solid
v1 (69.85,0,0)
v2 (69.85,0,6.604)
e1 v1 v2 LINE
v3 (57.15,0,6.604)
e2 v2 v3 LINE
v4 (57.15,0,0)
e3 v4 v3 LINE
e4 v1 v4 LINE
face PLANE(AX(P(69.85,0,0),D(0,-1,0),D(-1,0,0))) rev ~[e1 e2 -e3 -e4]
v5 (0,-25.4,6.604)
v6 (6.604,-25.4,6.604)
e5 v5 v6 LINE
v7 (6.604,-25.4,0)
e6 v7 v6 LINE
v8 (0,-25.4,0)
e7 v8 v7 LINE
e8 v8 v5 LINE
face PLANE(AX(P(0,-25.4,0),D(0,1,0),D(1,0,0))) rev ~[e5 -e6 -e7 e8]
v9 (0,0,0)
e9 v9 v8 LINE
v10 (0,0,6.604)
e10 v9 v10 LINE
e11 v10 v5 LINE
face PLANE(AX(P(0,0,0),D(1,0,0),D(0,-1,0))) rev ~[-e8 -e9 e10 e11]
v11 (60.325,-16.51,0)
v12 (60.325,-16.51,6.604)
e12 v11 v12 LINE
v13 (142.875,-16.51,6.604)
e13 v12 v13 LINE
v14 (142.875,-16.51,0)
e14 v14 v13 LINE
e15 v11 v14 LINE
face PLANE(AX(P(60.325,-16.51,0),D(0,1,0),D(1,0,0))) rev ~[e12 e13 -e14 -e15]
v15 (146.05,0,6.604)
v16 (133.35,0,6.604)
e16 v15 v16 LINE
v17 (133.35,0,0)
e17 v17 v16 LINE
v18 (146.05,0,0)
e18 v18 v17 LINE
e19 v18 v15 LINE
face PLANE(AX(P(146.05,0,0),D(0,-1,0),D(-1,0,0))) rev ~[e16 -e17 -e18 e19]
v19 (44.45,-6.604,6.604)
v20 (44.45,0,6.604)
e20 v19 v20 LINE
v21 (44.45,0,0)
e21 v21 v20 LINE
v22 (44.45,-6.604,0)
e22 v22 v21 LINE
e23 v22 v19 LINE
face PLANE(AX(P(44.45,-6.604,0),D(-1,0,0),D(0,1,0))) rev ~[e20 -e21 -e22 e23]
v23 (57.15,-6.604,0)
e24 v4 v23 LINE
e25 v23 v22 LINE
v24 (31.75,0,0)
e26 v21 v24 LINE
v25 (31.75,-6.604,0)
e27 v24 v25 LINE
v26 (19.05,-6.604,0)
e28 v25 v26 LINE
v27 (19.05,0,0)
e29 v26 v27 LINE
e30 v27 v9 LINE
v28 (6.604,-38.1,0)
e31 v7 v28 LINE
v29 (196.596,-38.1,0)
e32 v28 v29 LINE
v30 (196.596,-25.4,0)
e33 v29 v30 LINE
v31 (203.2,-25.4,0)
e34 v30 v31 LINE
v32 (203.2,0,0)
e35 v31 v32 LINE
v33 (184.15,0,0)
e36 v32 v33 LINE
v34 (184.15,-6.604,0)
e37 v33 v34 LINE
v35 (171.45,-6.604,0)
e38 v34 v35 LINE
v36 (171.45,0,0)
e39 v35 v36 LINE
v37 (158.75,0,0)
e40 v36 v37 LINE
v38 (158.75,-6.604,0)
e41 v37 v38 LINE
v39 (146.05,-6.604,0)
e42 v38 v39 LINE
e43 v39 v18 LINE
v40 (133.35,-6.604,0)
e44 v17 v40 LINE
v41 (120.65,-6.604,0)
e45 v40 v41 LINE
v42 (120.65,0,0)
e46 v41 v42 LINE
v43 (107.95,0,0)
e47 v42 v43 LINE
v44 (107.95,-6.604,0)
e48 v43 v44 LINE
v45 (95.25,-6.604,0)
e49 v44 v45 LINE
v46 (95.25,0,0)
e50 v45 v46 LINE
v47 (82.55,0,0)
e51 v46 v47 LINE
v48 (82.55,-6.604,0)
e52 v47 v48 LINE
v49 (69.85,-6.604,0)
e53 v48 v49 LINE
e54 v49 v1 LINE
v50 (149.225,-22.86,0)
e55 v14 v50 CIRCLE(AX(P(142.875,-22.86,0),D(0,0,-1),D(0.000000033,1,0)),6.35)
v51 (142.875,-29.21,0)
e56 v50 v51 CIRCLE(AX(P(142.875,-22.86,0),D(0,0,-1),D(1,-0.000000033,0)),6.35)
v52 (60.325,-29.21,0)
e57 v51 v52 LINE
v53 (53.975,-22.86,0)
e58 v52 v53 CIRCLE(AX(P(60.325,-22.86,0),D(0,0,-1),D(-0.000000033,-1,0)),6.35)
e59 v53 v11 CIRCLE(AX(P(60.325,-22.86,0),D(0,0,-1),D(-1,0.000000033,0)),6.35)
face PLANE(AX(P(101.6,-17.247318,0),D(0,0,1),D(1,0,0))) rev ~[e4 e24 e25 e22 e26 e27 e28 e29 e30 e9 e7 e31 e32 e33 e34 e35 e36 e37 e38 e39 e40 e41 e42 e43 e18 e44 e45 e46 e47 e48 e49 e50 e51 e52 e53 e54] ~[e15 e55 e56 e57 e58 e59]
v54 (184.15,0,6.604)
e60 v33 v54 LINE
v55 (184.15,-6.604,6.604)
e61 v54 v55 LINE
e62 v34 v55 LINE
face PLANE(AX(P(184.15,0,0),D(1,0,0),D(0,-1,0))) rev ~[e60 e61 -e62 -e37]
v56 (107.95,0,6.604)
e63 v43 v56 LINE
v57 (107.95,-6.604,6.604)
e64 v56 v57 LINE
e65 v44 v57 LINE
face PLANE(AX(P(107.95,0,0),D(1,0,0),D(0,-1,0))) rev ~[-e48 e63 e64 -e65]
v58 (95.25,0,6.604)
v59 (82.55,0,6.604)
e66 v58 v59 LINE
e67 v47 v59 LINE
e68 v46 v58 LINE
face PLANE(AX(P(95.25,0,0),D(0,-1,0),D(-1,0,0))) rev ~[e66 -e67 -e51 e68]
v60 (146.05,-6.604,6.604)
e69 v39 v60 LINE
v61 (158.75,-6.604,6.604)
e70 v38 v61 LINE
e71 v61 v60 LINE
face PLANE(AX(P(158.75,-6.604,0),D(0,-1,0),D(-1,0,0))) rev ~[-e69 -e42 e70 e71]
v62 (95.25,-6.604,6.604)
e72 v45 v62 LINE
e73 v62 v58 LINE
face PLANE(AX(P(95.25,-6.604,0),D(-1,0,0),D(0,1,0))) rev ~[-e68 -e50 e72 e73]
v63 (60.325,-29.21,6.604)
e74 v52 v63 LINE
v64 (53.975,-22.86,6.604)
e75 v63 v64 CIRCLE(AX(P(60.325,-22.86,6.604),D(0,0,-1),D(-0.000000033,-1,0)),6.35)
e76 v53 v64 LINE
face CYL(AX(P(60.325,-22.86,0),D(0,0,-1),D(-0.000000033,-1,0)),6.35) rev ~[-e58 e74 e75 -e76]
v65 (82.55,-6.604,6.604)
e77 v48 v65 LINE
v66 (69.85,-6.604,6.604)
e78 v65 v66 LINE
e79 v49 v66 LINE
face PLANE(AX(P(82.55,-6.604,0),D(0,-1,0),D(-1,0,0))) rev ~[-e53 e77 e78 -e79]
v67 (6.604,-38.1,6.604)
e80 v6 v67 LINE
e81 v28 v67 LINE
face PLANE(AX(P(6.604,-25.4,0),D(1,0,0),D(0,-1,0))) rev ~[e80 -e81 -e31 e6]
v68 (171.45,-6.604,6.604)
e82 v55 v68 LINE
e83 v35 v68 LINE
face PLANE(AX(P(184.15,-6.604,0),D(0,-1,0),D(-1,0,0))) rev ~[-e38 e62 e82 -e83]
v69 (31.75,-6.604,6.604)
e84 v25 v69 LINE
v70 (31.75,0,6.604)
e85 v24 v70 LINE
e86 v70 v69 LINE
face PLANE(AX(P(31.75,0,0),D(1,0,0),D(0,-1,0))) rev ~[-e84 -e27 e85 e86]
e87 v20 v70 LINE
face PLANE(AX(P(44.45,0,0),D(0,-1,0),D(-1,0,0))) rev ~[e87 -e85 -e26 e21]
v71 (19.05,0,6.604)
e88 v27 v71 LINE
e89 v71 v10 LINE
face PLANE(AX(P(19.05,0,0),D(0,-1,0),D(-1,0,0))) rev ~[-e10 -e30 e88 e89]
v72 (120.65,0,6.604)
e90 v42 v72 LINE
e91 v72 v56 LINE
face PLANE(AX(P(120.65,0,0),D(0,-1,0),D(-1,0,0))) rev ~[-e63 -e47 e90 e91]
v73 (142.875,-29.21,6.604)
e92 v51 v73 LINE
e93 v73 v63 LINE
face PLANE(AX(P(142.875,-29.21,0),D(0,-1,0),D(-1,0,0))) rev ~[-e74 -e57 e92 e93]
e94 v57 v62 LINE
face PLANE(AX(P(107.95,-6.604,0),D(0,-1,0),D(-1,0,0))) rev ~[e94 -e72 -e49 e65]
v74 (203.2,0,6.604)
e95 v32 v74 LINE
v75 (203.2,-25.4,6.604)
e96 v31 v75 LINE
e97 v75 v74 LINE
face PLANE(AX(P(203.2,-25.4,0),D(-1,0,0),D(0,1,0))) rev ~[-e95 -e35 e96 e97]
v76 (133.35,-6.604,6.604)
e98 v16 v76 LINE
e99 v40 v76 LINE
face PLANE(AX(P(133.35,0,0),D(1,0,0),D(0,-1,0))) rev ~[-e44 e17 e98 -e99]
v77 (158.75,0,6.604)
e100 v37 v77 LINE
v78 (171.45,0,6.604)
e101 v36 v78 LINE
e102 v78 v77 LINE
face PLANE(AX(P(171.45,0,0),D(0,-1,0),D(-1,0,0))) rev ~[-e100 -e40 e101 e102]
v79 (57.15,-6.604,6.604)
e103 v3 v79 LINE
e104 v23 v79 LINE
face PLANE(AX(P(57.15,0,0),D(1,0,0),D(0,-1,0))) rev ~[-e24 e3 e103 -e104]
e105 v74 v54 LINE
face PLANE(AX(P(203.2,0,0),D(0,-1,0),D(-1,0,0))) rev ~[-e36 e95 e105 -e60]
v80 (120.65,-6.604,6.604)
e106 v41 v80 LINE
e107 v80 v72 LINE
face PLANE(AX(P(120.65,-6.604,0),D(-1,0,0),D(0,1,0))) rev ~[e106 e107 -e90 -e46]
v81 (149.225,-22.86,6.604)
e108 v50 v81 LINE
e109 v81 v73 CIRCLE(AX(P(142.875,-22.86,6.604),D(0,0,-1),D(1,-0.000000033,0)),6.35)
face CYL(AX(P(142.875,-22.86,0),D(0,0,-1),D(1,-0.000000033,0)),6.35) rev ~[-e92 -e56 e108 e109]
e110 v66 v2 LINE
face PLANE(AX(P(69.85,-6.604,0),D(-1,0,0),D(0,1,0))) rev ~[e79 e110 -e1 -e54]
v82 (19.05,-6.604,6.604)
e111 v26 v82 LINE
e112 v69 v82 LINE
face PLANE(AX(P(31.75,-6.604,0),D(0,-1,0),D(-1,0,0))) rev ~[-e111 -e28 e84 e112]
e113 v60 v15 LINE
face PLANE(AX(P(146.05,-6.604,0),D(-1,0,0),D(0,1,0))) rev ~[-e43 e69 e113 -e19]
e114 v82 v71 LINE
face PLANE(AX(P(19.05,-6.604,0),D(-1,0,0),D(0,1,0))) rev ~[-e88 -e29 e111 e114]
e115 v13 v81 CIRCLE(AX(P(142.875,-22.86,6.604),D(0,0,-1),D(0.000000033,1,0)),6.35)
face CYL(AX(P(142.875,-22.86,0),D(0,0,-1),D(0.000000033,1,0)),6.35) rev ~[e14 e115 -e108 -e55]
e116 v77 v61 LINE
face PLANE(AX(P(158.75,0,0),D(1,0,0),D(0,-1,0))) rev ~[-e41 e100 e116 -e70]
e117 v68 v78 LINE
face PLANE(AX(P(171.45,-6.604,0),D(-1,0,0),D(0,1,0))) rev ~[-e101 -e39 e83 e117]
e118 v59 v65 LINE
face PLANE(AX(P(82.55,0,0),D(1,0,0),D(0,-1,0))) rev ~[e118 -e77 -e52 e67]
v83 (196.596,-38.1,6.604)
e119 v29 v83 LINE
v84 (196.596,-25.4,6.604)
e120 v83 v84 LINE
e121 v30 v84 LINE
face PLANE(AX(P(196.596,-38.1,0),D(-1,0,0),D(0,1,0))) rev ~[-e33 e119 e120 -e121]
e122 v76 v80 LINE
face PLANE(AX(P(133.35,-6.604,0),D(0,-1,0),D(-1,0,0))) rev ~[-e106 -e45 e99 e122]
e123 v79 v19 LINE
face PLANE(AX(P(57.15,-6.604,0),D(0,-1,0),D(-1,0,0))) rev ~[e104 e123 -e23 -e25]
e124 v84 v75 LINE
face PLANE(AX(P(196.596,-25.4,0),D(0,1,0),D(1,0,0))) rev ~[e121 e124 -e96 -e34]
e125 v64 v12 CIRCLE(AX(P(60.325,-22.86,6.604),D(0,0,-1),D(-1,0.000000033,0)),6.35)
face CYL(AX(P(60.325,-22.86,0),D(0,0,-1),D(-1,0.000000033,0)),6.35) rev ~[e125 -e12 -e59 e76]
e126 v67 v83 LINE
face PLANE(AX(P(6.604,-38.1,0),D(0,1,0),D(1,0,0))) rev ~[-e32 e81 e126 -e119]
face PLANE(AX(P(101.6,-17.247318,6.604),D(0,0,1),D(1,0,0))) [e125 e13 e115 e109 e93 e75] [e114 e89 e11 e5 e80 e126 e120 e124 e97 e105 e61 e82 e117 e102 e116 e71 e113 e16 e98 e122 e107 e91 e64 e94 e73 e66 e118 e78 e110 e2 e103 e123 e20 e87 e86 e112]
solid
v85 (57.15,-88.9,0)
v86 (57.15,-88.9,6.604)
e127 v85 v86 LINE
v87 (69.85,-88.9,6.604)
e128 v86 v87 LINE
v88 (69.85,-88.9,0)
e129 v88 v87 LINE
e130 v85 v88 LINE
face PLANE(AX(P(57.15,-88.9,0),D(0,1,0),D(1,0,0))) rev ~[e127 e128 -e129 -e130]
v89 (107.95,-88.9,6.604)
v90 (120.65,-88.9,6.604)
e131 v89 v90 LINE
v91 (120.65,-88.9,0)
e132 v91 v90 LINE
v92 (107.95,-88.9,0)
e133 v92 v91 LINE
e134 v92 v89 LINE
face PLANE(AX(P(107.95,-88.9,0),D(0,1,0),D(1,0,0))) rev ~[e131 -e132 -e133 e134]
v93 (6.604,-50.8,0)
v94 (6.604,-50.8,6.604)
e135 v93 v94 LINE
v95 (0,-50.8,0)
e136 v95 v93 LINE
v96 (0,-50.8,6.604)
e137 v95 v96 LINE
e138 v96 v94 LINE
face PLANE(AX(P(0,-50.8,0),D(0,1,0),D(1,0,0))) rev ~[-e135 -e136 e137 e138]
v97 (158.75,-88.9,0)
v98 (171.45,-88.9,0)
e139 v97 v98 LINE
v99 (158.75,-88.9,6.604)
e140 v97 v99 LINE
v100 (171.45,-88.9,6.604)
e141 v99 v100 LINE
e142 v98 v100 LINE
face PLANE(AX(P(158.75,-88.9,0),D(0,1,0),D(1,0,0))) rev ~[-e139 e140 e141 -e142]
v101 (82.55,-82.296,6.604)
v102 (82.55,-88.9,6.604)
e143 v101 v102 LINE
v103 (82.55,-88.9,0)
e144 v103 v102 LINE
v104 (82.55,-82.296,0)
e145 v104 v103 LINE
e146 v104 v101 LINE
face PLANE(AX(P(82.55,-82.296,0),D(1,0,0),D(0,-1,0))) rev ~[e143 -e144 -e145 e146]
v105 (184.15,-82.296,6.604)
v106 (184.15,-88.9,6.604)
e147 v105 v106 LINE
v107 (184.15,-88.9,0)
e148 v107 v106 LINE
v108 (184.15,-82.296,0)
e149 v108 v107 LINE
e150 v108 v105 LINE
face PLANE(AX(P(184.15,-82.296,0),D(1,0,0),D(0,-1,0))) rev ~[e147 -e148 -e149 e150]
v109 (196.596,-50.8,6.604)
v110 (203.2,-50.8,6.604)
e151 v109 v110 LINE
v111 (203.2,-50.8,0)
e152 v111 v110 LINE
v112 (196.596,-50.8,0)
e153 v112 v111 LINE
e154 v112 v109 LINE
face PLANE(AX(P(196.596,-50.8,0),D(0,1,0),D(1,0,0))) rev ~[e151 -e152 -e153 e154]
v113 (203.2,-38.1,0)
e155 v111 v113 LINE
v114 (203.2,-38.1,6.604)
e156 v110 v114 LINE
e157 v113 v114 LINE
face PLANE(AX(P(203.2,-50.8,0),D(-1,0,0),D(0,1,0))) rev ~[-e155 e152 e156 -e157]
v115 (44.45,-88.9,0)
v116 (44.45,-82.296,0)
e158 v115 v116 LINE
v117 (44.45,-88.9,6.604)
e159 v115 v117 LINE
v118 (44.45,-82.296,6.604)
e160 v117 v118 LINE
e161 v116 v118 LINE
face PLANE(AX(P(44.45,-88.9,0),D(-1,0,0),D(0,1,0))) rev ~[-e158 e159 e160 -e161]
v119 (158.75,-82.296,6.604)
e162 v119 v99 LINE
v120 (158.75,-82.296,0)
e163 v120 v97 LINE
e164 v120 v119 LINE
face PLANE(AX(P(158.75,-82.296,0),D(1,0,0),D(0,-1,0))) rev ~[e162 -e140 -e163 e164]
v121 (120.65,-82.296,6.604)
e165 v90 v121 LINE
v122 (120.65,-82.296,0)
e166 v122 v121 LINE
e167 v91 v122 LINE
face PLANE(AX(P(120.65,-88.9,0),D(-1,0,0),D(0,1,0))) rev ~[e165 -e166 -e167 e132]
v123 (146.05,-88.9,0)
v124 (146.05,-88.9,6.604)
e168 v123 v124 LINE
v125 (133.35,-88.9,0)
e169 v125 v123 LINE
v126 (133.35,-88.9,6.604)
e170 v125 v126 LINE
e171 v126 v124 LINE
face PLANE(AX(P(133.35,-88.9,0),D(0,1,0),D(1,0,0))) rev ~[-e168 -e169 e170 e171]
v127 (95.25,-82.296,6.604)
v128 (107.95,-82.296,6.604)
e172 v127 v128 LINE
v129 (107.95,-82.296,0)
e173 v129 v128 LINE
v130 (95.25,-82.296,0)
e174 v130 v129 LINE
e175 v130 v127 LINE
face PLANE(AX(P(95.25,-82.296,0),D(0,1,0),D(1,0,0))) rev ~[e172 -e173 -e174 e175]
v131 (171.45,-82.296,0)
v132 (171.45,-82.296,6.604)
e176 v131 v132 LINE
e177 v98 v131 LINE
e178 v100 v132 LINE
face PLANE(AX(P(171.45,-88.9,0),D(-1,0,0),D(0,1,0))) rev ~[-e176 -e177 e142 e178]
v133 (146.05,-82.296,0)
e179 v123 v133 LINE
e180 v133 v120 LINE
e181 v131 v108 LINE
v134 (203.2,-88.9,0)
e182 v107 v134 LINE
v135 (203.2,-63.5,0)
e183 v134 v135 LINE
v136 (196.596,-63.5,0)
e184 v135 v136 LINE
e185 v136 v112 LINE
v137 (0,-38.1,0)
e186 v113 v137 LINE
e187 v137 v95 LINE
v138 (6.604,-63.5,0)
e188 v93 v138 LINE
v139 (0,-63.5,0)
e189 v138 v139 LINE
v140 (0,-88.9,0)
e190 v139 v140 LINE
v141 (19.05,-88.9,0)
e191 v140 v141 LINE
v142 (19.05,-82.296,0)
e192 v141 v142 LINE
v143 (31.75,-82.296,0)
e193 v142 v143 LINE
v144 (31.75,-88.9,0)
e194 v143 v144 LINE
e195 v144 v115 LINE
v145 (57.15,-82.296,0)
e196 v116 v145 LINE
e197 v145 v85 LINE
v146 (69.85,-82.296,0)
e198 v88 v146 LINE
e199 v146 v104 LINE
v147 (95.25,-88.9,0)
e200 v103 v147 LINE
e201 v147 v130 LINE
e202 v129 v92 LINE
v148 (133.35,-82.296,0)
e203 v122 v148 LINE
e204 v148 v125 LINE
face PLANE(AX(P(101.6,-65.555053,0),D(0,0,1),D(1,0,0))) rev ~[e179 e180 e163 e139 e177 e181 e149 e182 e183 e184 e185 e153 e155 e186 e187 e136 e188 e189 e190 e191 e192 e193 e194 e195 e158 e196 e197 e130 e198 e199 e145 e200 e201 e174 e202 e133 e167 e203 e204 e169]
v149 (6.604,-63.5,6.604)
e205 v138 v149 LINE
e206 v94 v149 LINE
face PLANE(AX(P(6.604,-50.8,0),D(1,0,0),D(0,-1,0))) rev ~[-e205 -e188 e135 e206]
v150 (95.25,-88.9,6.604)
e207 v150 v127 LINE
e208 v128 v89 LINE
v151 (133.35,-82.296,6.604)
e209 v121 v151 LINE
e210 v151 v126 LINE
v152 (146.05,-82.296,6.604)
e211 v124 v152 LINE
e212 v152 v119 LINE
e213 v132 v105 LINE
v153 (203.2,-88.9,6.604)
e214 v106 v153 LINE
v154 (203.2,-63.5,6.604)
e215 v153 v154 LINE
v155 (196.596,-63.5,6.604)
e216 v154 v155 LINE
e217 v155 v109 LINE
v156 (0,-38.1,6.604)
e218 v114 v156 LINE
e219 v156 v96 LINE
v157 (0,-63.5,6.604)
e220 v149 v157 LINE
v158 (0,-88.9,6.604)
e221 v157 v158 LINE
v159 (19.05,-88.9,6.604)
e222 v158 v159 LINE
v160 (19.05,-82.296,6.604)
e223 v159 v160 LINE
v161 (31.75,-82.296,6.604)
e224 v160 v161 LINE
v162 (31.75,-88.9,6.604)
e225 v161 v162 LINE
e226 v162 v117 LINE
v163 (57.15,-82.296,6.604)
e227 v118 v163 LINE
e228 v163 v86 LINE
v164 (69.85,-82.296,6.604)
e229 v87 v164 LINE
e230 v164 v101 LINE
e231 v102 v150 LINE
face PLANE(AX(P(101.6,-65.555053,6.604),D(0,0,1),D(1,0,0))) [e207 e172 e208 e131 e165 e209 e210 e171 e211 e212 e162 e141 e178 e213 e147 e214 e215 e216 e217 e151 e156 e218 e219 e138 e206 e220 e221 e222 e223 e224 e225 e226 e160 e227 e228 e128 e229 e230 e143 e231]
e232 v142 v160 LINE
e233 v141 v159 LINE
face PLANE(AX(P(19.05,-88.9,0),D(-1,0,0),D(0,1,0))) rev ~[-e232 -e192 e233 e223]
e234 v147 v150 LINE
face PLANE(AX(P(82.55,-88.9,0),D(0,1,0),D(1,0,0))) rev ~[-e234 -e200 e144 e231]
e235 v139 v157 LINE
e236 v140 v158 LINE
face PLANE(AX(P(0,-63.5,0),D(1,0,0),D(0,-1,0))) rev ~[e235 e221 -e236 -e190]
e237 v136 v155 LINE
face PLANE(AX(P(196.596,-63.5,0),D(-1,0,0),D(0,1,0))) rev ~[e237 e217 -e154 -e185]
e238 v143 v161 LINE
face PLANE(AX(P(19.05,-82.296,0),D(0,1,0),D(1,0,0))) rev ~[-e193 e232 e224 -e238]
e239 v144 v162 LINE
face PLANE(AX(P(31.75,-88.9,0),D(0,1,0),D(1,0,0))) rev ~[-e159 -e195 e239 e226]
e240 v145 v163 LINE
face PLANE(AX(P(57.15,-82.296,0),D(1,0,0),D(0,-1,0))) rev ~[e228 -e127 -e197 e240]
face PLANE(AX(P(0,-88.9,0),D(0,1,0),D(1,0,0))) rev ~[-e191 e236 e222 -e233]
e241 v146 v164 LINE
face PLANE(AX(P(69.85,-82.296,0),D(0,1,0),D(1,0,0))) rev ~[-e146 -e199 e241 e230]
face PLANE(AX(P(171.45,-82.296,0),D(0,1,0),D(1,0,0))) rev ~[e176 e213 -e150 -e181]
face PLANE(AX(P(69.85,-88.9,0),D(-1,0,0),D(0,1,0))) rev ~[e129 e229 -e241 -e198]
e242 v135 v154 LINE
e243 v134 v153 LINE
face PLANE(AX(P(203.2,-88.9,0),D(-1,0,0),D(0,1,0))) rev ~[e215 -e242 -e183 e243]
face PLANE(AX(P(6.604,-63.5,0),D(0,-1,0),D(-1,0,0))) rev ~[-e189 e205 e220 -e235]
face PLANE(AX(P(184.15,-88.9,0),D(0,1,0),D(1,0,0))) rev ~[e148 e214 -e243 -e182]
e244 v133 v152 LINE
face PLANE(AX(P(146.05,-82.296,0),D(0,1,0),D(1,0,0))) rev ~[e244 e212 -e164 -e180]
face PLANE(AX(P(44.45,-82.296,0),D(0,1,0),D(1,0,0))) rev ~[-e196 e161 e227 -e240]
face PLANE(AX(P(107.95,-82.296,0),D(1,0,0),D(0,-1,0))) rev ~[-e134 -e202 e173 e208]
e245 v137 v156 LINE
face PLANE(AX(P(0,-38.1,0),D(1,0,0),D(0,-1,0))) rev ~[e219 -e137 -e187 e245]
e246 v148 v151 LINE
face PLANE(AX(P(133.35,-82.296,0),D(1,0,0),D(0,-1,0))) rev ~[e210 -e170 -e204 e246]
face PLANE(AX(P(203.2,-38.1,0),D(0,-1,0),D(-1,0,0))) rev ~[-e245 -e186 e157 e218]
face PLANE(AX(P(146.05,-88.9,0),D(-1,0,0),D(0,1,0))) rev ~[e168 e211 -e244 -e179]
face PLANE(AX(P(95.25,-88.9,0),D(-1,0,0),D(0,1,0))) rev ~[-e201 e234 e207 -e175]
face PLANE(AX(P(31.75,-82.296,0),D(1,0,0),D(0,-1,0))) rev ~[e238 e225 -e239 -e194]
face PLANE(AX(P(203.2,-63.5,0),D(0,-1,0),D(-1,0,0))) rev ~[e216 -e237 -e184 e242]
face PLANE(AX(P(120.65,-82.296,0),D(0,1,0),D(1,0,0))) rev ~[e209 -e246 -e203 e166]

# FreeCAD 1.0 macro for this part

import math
import FreeCAD as App
import Part
import Sketcher
from FreeCAD import Vector
Q = App.Units.Quantity

doc = App.newDocument("Part")
params = doc.addObject("Spreadsheet::Sheet", "Params")
for row, (alias, value) in enumerate([
    ("sketch1_height", "1 in"),
    ("sketch1_radius", "0.25 in"),
    ("sketch1_width", "0.5 in"),
    ("sketch1_width2", "0.26 in"),
    ("sketch1_width3", "3.25 in"),
    ("pad1_length", "0.26 in"),
    ("sketch2_width", "8 in"),
    ("sketch2_height", "1 in"),
    ("sketch2_width2", "0.5 in"),
    ("sketch2_width3", "0.26 in"),
    ("pad2_length", "0.26 in"),
], start=1):
    params.set(f"A{row}", alias)
    params.set(f"B{row}", "=" + value)
    params.setAlias(f"B{row}", alias)

body = doc.addObject("PartDesign::Body", "Body")

sketch1 = body.newObject("Sketcher::SketchObject", "Sketch")
sketch1.AttachmentSupport = (doc.getObject("XY_Plane"), [""])
sketch1.MapMode = "FlatFace"
sketch1.addGeometry(Part.LineSegment(Vector(19.05, 0, 0), Vector(0, 0, 0)), False)
sketch1.addGeometry(Part.LineSegment(Vector(0, 0, 0), Vector(0, -25.4, 0)), False)
sketch1.addGeometry(Part.LineSegment(Vector(0, -25.4, 0), Vector(6.604, -25.4, 0)), False)
sketch1.addGeometry(Part.LineSegment(Vector(6.604, -25.4, 0), Vector(6.604, -38.1, 0)), False)
sketch1.addGeometry(Part.LineSegment(Vector(6.604, -38.1, 0), Vector(196.596, -38.1, 0)), False)
sketch1.addGeometry(Part.LineSegment(Vector(196.596, -38.1, 0), Vector(196.596, -25.4, 0)), False)
sketch1.addGeometry(Part.LineSegment(Vector(196.596, -25.4, 0), Vector(203.2, -25.4, 0)), False)
sketch1.addGeometry(Part.LineSegment(Vector(203.2, -25.4, 0), Vector(203.2, 0, 0)), False)
sketch1.addGeometry(Part.LineSegment(Vector(203.2, 0, 0), Vector(184.15, 0, 0)), False)
sketch1.addGeometry(Part.LineSegment(Vector(184.15, 0, 0), Vector(184.15, -6.604, 0)), False)
sketch1.addGeometry(Part.LineSegment(Vector(184.15, -6.604, 0), Vector(171.45, -6.604, 0)), False)
sketch1.addGeometry(Part.LineSegment(Vector(171.45, -6.604, 0), Vector(171.45, 0, 0)), False)
sketch1.addGeometry(Part.LineSegment(Vector(171.45, 0, 0), Vector(158.75, 0, 0)), False)
sketch1.addGeometry(Part.LineSegment(Vector(158.75, 0, 0), Vector(158.75, -6.604, 0)), False)
sketch1.addGeometry(Part.LineSegment(Vector(158.75, -6.604, 0), Vector(146.05, -6.604, 0)), False)
sketch1.addGeometry(Part.LineSegment(Vector(146.05, -6.604, 0), Vector(146.05, 0, 0)), False)
sketch1.addGeometry(Part.LineSegment(Vector(146.05, 0, 0), Vector(133.35, 0, 0)), False)
sketch1.addGeometry(Part.LineSegment(Vector(133.35, 0, 0), Vector(133.35, -6.604, 0)), False)
sketch1.addGeometry(Part.LineSegment(Vector(133.35, -6.604, 0), Vector(120.65, -6.604, 0)), False)
sketch1.addGeometry(Part.LineSegment(Vector(120.65, -6.604, 0), Vector(120.65, 0, 0)), False)
sketch1.addGeometry(Part.LineSegment(Vector(120.65, 0, 0), Vector(107.95, 0, 0)), False)
sketch1.addGeometry(Part.LineSegment(Vector(107.95, 0, 0), Vector(107.95, -6.604, 0)), False)
sketch1.addGeometry(Part.LineSegment(Vector(107.95, -6.604, 0), Vector(95.25, -6.604, 0)), False)
sketch1.addGeometry(Part.LineSegment(Vector(95.25, -6.604, 0), Vector(95.25, 0, 0)), False)
sketch1.addGeometry(Part.LineSegment(Vector(95.25, 0, 0), Vector(82.55, 0, 0)), False)
sketch1.addGeometry(Part.LineSegment(Vector(82.55, 0, 0), Vector(82.55, -6.604, 0)), False)
sketch1.addGeometry(Part.LineSegment(Vector(82.55, -6.604, 0), Vector(69.85, -6.604, 0)), False)
sketch1.addGeometry(Part.LineSegment(Vector(69.85, -6.604, 0), Vector(69.85, 0, 0)), False)
sketch1.addGeometry(Part.LineSegment(Vector(69.85, 0, 0), Vector(57.15, 0, 0)), False)
sketch1.addGeometry(Part.LineSegment(Vector(57.15, 0, 0), Vector(57.15, -6.604, 0)), False)
sketch1.addGeometry(Part.LineSegment(Vector(57.15, -6.604, 0), Vector(44.45, -6.604, 0)), False)
sketch1.addGeometry(Part.LineSegment(Vector(44.45, -6.604, 0), Vector(44.45, 0, 0)), False)
sketch1.addGeometry(Part.LineSegment(Vector(44.45, 0, 0), Vector(31.75, 0, 0)), False)
sketch1.addGeometry(Part.LineSegment(Vector(31.75, 0, 0), Vector(31.75, -6.604, 0)), False)
sketch1.addGeometry(Part.LineSegment(Vector(31.75, -6.604, 0), Vector(19.05, -6.604, 0)), False)
sketch1.addGeometry(Part.LineSegment(Vector(19.05, -6.604, 0), Vector(19.05, 0, 0)), False)
sketch1.addGeometry(Part.ArcOfCircle(Part.Circle(Vector(60.325, -22.86, 0), Vector(0, 0, 1), 6.35), math.radians(-179.999998), math.radians(-90.000002)), False)
sketch1.addGeometry(Part.ArcOfCircle(Part.Circle(Vector(60.325, -22.86, 0), Vector(0, 0, 1), 6.35), math.radians(90.000002), math.radians(179.999998)), False)
sketch1.addGeometry(Part.LineSegment(Vector(60.325, -16.51, 0), Vector(142.875, -16.51, 0)), False)
sketch1.addGeometry(Part.ArcOfCircle(Part.Circle(Vector(142.875, -22.86, 0), Vector(0, 0, 1), 6.35), math.radians(0.000002), math.radians(89.999998)), False)
sketch1.addGeometry(Part.ArcOfCircle(Part.Circle(Vector(142.875, -22.86, 0), Vector(0, 0, 1), 6.35), math.radians(-89.999998), math.radians(-0.000002)), False)
sketch1.addGeometry(Part.LineSegment(Vector(142.875, -29.21, 0), Vector(60.325, -29.21, 0)), False)
sketch1.addConstraint(Sketcher.Constraint("Coincident", 0, 2, 1, 1))
sketch1.addConstraint(Sketcher.Constraint("Coincident", 1, 2, 2, 1))
sketch1.addConstraint(Sketcher.Constraint("Coincident", 2, 2, 3, 1))
sketch1.addConstraint(Sketcher.Constraint("Coincident", 3, 2, 4, 1))
sketch1.addConstraint(Sketcher.Constraint("Coincident", 4, 2, 5, 1))
sketch1.addConstraint(Sketcher.Constraint("Coincident", 5, 2, 6, 1))
sketch1.addConstraint(Sketcher.Constraint("Coincident", 6, 2, 7, 1))
sketch1.addConstraint(Sketcher.Constraint("Coincident", 7, 2, 8, 1))
sketch1.addConstraint(Sketcher.Constraint("Coincident", 8, 2, 9, 1))
sketch1.addConstraint(Sketcher.Constraint("Coincident", 9, 2, 10, 1))
sketch1.addConstraint(Sketcher.Constraint("Coincident", 10, 2, 11, 1))
sketch1.addConstraint(Sketcher.Constraint("Coincident", 11, 2, 12, 1))
sketch1.addConstraint(Sketcher.Constraint("Coincident", 12, 2, 13, 1))
sketch1.addConstraint(Sketcher.Constraint("Coincident", 13, 2, 14, 1))
sketch1.addConstraint(Sketcher.Constraint("Coincident", 14, 2, 15, 1))
sketch1.addConstraint(Sketcher.Constraint("Coincident", 15, 2, 16, 1))
sketch1.addConstraint(Sketcher.Constraint("Coincident", 16, 2, 17, 1))
sketch1.addConstraint(Sketcher.Constraint("Coincident", 17, 2, 18, 1))
sketch1.addConstraint(Sketcher.Constraint("Coincident", 18, 2, 19, 1))
sketch1.addConstraint(Sketcher.Constraint("Coincident", 19, 2, 20, 1))
sketch1.addConstraint(Sketcher.Constraint("Coincident", 20, 2, 21, 1))
sketch1.addConstraint(Sketcher.Constraint("Coincident", 21, 2, 22, 1))
sketch1.addConstraint(Sketcher.Constraint("Coincident", 22, 2, 23, 1))
sketch1.addConstraint(Sketcher.Constraint("Coincident", 23, 2, 24, 1))
sketch1.addConstraint(Sketcher.Constraint("Coincident", 24, 2, 25, 1))
sketch1.addConstraint(Sketcher.Constraint("Coincident", 25, 2, 26, 1))
sketch1.addConstraint(Sketcher.Constraint("Coincident", 26, 2, 27, 1))
sketch1.addConstraint(Sketcher.Constraint("Coincident", 27, 2, 28, 1))
sketch1.addConstraint(Sketcher.Constraint("Coincident", 28, 2, 29, 1))
sketch1.addConstraint(Sketcher.Constraint("Coincident", 29, 2, 30, 1))
sketch1.addConstraint(Sketcher.Constraint("Coincident", 30, 2, 31, 1))
sketch1.addConstraint(Sketcher.Constraint("Coincident", 31, 2, 32, 1))
sketch1.addConstraint(Sketcher.Constraint("Coincident", 32, 2, 33, 1))
sketch1.addConstraint(Sketcher.Constraint("Coincident", 33, 2, 34, 1))
sketch1.addConstraint(Sketcher.Constraint("Coincident", 34, 2, 35, 1))
sketch1.addConstraint(Sketcher.Constraint("Coincident", 35, 2, 0, 1))
sketch1.addConstraint(Sketcher.Constraint("Tangent", 36, 1, 37, 2))
sketch1.addConstraint(Sketcher.Constraint("Tangent", 37, 1, 38, 1))
sketch1.addConstraint(Sketcher.Constraint("Tangent", 38, 2, 39, 2))
sketch1.addConstraint(Sketcher.Constraint("Tangent", 39, 1, 40, 2))
sketch1.addConstraint(Sketcher.Constraint("Tangent", 40, 1, 41, 1))
sketch1.addConstraint(Sketcher.Constraint("Tangent", 41, 2, 36, 2))
sketch1.addConstraint(Sketcher.Constraint("Horizontal", 0))
sketch1.addConstraint(Sketcher.Constraint("Vertical", 1))
sketch1.addConstraint(Sketcher.Constraint("Horizontal", 2))
sketch1.addConstraint(Sketcher.Constraint("Vertical", 3))
sketch1.addConstraint(Sketcher.Constraint("Horizontal", 4))
sketch1.addConstraint(Sketcher.Constraint("Vertical", 5))
sketch1.addConstraint(Sketcher.Constraint("Horizontal", 6))
sketch1.addConstraint(Sketcher.Constraint("Vertical", 7))
sketch1.addConstraint(Sketcher.Constraint("Horizontal", 8))
sketch1.addConstraint(Sketcher.Constraint("Vertical", 9))
sketch1.addConstraint(Sketcher.Constraint("Horizontal", 10))
sketch1.addConstraint(Sketcher.Constraint("Vertical", 11))
sketch1.addConstraint(Sketcher.Constraint("Horizontal", 12))
sketch1.addConstraint(Sketcher.Constraint("Vertical", 13))
sketch1.addConstraint(Sketcher.Constraint("Horizontal", 14))
sketch1.addConstraint(Sketcher.Constraint("Vertical", 15))
sketch1.addConstraint(Sketcher.Constraint("Horizontal", 16))
sketch1.addConstraint(Sketcher.Constraint("Vertical", 17))
sketch1.addConstraint(Sketcher.Constraint("Horizontal", 18))
sketch1.addConstraint(Sketcher.Constraint("Vertical", 19))
sketch1.addConstraint(Sketcher.Constraint("Horizontal", 20))
sketch1.addConstraint(Sketcher.Constraint("Vertical", 21))
sketch1.addConstraint(Sketcher.Constraint("Horizontal", 22))
sketch1.addConstraint(Sketcher.Constraint("Vertical", 23))
sketch1.addConstraint(Sketcher.Constraint("Horizontal", 24))
sketch1.addConstraint(Sketcher.Constraint("Vertical", 25))
sketch1.addConstraint(Sketcher.Constraint("Horizontal", 26))
sketch1.addConstraint(Sketcher.Constraint("Vertical", 27))
sketch1.addConstraint(Sketcher.Constraint("Horizontal", 28))
sketch1.addConstraint(Sketcher.Constraint("Vertical", 29))
sketch1.addConstraint(Sketcher.Constraint("Horizontal", 30))
sketch1.addConstraint(Sketcher.Constraint("Vertical", 31))
sketch1.addConstraint(Sketcher.Constraint("Horizontal", 32))
sketch1.addConstraint(Sketcher.Constraint("Vertical", 33))
sketch1.addConstraint(Sketcher.Constraint("Horizontal", 34))
sketch1.addConstraint(Sketcher.Constraint("Vertical", 35))
sketch1.addConstraint(Sketcher.Constraint("Horizontal", 38))
sketch1.addConstraint(Sketcher.Constraint("Horizontal", 41))
sketch1.addConstraint(Sketcher.Constraint("Coincident", 0, 2, -1, 1))
sketch1.addConstraint(Sketcher.Constraint("Equal", 36, 37))
sketch1.addConstraint(Sketcher.Constraint("Equal", 37, 39))
sketch1.addConstraint(Sketcher.Constraint("PointOnObject", 7, 2, -1))
sketch1.addConstraint(Sketcher.Constraint("PointOnObject", 11, 2, -1))
sketch1.addConstraint(Sketcher.Constraint("PointOnObject", 15, 2, -1))
sketch1.addConstraint(Sketcher.Constraint("PointOnObject", 19, 2, -1))
sketch1.addConstraint(Sketcher.Constraint("PointOnObject", 23, 2, -1))
sketch1.addConstraint(Sketcher.Constraint("PointOnObject", 27, 2, -1))
sketch1.addConstraint(Sketcher.Constraint("PointOnObject", 31, 2, -1))
sketch1.addConstraint(Sketcher.Constraint("Horizontal", 2, 2, 5, 2))
sketch1.addConstraint(Sketcher.Constraint("Horizontal", 10, 2, 13, 2))
sketch1.addConstraint(Sketcher.Constraint("Horizontal", 14, 2, 17, 2))
sketch1.addConstraint(Sketcher.Constraint("Horizontal", 18, 2, 21, 2))
sketch1.addConstraint(Sketcher.Constraint("Horizontal", 22, 2, 25, 2))
sketch1.addConstraint(Sketcher.Constraint("Horizontal", 26, 2, 29, 2))
sketch1.addConstraint(Sketcher.Constraint("Horizontal", 30, 2, 33, 2))
sketch1.addConstraint(Sketcher.Constraint("Horizontal", 40, 3, 36, 1))
sketch1.addConstraint(Sketcher.Constraint("Horizontal", 36, 1, 39, 1))
sketch1.addConstraint(Sketcher.Constraint("Equal", 2, 6))
sketch1.addConstraint(Sketcher.Constraint("Equal", 0, 8))
sketch1.addConstraint(Sketcher.Constraint("Equal", 10, 12))
sketch1.addConstraint(Sketcher.Constraint("Equal", 12, 14))
sketch1.addConstraint(Sketcher.Constraint("Equal", 14, 16))
sketch1.addConstraint(Sketcher.Constraint("Equal", 16, 18))
sketch1.addConstraint(Sketcher.Constraint("Equal", 18, 20))
sketch1.addConstraint(Sketcher.Constraint("Equal", 20, 22))
sketch1.addConstraint(Sketcher.Constraint("Equal", 22, 24))
sketch1.addConstraint(Sketcher.Constraint("Equal", 24, 26))
sketch1.addConstraint(Sketcher.Constraint("Equal", 26, 28))
sketch1.addConstraint(Sketcher.Constraint("Equal", 28, 30))
sketch1.addConstraint(Sketcher.Constraint("Equal", 30, 32))
sketch1.addConstraint(Sketcher.Constraint("Equal", 32, 34))
sketch1.addConstraint(Sketcher.Constraint("Equal", 34, 3))
sketch1.addConstraint(Sketcher.Constraint("Equal", 6, 9))
sketch1.addConstraint(Sketcher.Constraint("DistanceY", 1, 2, 1, 1, Q("1 in")))
sketch1.addConstraint(Sketcher.Constraint("Radius", 36, Q("0.25 in")))
sketch1.addConstraint(Sketcher.Constraint("DistanceX", 10, 2, 10, 1, Q("0.5 in")))
sketch1.addConstraint(Sketcher.Constraint("DistanceX", -1, 1, 6, 2, Q("8 in")))
sketch1.addConstraint(Sketcher.Constraint("DistanceX", 2, 1, 2, 2, Q("0.26 in")))
sketch1.addConstraint(Sketcher.Constraint("DistanceX", 38, 1, 38, 2, Q("3.25 in")))
sketch1.addConstraint(Sketcher.Constraint("DistanceY", 36, 3, -1, 1, Q("0.9 in")))
sketch1.addConstraint(Sketcher.Constraint("DistanceX", -1, 1, 36, 3, Q("2.375 in")))
sketch1.setExpression("Constraints[115]", "Params.sketch1_height")
sketch1.setExpression("Constraints[116]", "Params.sketch1_radius")
sketch1.setExpression("Constraints[117]", "Params.sketch1_width")
sketch1.setExpression("Constraints[119]", "Params.sketch1_width2")
sketch1.setExpression("Constraints[120]", "Params.sketch1_width3")
pad1 = body.newObject("PartDesign::Pad", "Pad")
pad1.Profile = sketch1
pad1.setExpression("Length", "Params.pad1_length")
body2 = doc.addObject("PartDesign::Body", "Body001")

sketch2 = body2.newObject("Sketcher::SketchObject", "Sketch001")
sketch2.AttachmentSupport = (doc.getObject("XY_Plane001"), [""])
sketch2.MapMode = "FlatFace"
sketch2.addGeometry(Part.LineSegment(Vector(0, -38.1, 0), Vector(0, -50.8, 0)), False)
sketch2.addGeometry(Part.LineSegment(Vector(0, -50.8, 0), Vector(6.604, -50.8, 0)), False)
sketch2.addGeometry(Part.LineSegment(Vector(6.604, -50.8, 0), Vector(6.604, -63.5, 0)), False)
sketch2.addGeometry(Part.LineSegment(Vector(6.604, -63.5, 0), Vector(0, -63.5, 0)), False)
sketch2.addGeometry(Part.LineSegment(Vector(0, -63.5, 0), Vector(0, -88.9, 0)), False)
sketch2.addGeometry(Part.LineSegment(Vector(0, -88.9, 0), Vector(19.05, -88.9, 0)), False)
sketch2.addGeometry(Part.LineSegment(Vector(19.05, -88.9, 0), Vector(19.05, -82.296, 0)), False)
sketch2.addGeometry(Part.LineSegment(Vector(19.05, -82.296, 0), Vector(31.75, -82.296, 0)), False)
sketch2.addGeometry(Part.LineSegment(Vector(31.75, -82.296, 0), Vector(31.75, -88.9, 0)), False)
sketch2.addGeometry(Part.LineSegment(Vector(31.75, -88.9, 0), Vector(44.45, -88.9, 0)), False)
sketch2.addGeometry(Part.LineSegment(Vector(44.45, -88.9, 0), Vector(44.45, -82.296, 0)), False)
sketch2.addGeometry(Part.LineSegment(Vector(44.45, -82.296, 0), Vector(57.15, -82.296, 0)), False)
sketch2.addGeometry(Part.LineSegment(Vector(57.15, -82.296, 0), Vector(57.15, -88.9, 0)), False)
sketch2.addGeometry(Part.LineSegment(Vector(57.15, -88.9, 0), Vector(69.85, -88.9, 0)), False)
sketch2.addGeometry(Part.LineSegment(Vector(69.85, -88.9, 0), Vector(69.85, -82.296, 0)), False)
sketch2.addGeometry(Part.LineSegment(Vector(69.85, -82.296, 0), Vector(82.55, -82.296, 0)), False)
sketch2.addGeometry(Part.LineSegment(Vector(82.55, -82.296, 0), Vector(82.55, -88.9, 0)), False)
sketch2.addGeometry(Part.LineSegment(Vector(82.55, -88.9, 0), Vector(95.25, -88.9, 0)), False)
sketch2.addGeometry(Part.LineSegment(Vector(95.25, -88.9, 0), Vector(95.25, -82.296, 0)), False)
sketch2.addGeometry(Part.LineSegment(Vector(95.25, -82.296, 0), Vector(107.95, -82.296, 0)), False)
sketch2.addGeometry(Part.LineSegment(Vector(107.95, -82.296, 0), Vector(107.95, -88.9, 0)), False)
sketch2.addGeometry(Part.LineSegment(Vector(107.95, -88.9, 0), Vector(120.65, -88.9, 0)), False)
sketch2.addGeometry(Part.LineSegment(Vector(120.65, -88.9, 0), Vector(120.65, -82.296, 0)), False)
sketch2.addGeometry(Part.LineSegment(Vector(120.65, -82.296, 0), Vector(133.35, -82.296, 0)), False)
sketch2.addGeometry(Part.LineSegment(Vector(133.35, -82.296, 0), Vector(133.35, -88.9, 0)), False)
sketch2.addGeometry(Part.LineSegment(Vector(133.35, -88.9, 0), Vector(146.05, -88.9, 0)), False)
sketch2.addGeometry(Part.LineSegment(Vector(146.05, -88.9, 0), Vector(146.05, -82.296, 0)), False)
sketch2.addGeometry(Part.LineSegment(Vector(146.05, -82.296, 0), Vector(158.75, -82.296, 0)), False)
sketch2.addGeometry(Part.LineSegment(Vector(158.75, -82.296, 0), Vector(158.75, -88.9, 0)), False)
sketch2.addGeometry(Part.LineSegment(Vector(158.75, -88.9, 0), Vector(171.45, -88.9, 0)), False)
sketch2.addGeometry(Part.LineSegment(Vector(171.45, -88.9, 0), Vector(171.45, -82.296, 0)), False)
sketch2.addGeometry(Part.LineSegment(Vector(171.45, -82.296, 0), Vector(184.15, -82.296, 0)), False)
sketch2.addGeometry(Part.LineSegment(Vector(184.15, -82.296, 0), Vector(184.15, -88.9, 0)), False)
sketch2.addGeometry(Part.LineSegment(Vector(184.15, -88.9, 0), Vector(203.2, -88.9, 0)), False)
sketch2.addGeometry(Part.LineSegment(Vector(203.2, -88.9, 0), Vector(203.2, -63.5, 0)), False)
sketch2.addGeometry(Part.LineSegment(Vector(203.2, -63.5, 0), Vector(196.596, -63.5, 0)), False)
sketch2.addGeometry(Part.LineSegment(Vector(196.596, -63.5, 0), Vector(196.596, -50.8, 0)), False)
sketch2.addGeometry(Part.LineSegment(Vector(196.596, -50.8, 0), Vector(203.2, -50.8, 0)), False)
sketch2.addGeometry(Part.LineSegment(Vector(203.2, -50.8, 0), Vector(203.2, -38.1, 0)), False)
sketch2.addGeometry(Part.LineSegment(Vector(203.2, -38.1, 0), Vector(0, -38.1, 0)), False)
sketch2.addConstraint(Sketcher.Constraint("Coincident", 0, 2, 1, 1))
sketch2.addConstraint(Sketcher.Constraint("Coincident", 1, 2, 2, 1))
sketch2.addConstraint(Sketcher.Constraint("Coincident", 2, 2, 3, 1))
sketch2.addConstraint(Sketcher.Constraint("Coincident", 3, 2, 4, 1))
sketch2.addConstraint(Sketcher.Constraint("Coincident", 4, 2, 5, 1))
sketch2.addConstraint(Sketcher.Constraint("Coincident", 5, 2, 6, 1))
sketch2.addConstraint(Sketcher.Constraint("Coincident", 6, 2, 7, 1))
sketch2.addConstraint(Sketcher.Constraint("Coincident", 7, 2, 8, 1))
sketch2.addConstraint(Sketcher.Constraint("Coincident", 8, 2, 9, 1))
sketch2.addConstraint(Sketcher.Constraint("Coincident", 9, 2, 10, 1))
sketch2.addConstraint(Sketcher.Constraint("Coincident", 10, 2, 11, 1))
sketch2.addConstraint(Sketcher.Constraint("Coincident", 11, 2, 12, 1))
sketch2.addConstraint(Sketcher.Constraint("Coincident", 12, 2, 13, 1))
sketch2.addConstraint(Sketcher.Constraint("Coincident", 13, 2, 14, 1))
sketch2.addConstraint(Sketcher.Constraint("Coincident", 14, 2, 15, 1))
sketch2.addConstraint(Sketcher.Constraint("Coincident", 15, 2, 16, 1))
sketch2.addConstraint(Sketcher.Constraint("Coincident", 16, 2, 17, 1))
sketch2.addConstraint(Sketcher.Constraint("Coincident", 17, 2, 18, 1))
sketch2.addConstraint(Sketcher.Constraint("Coincident", 18, 2, 19, 1))
sketch2.addConstraint(Sketcher.Constraint("Coincident", 19, 2, 20, 1))
sketch2.addConstraint(Sketcher.Constraint("Coincident", 20, 2, 21, 1))
sketch2.addConstraint(Sketcher.Constraint("Coincident", 21, 2, 22, 1))
sketch2.addConstraint(Sketcher.Constraint("Coincident", 22, 2, 23, 1))
sketch2.addConstraint(Sketcher.Constraint("Coincident", 23, 2, 24, 1))
sketch2.addConstraint(Sketcher.Constraint("Coincident", 24, 2, 25, 1))
sketch2.addConstraint(Sketcher.Constraint("Coincident", 25, 2, 26, 1))
sketch2.addConstraint(Sketcher.Constraint("Coincident", 26, 2, 27, 1))
sketch2.addConstraint(Sketcher.Constraint("Coincident", 27, 2, 28, 1))
sketch2.addConstraint(Sketcher.Constraint("Coincident", 28, 2, 29, 1))
sketch2.addConstraint(Sketcher.Constraint("Coincident", 29, 2, 30, 1))
sketch2.addConstraint(Sketcher.Constraint("Coincident", 30, 2, 31, 1))
sketch2.addConstraint(Sketcher.Constraint("Coincident", 31, 2, 32, 1))
sketch2.addConstraint(Sketcher.Constraint("Coincident", 32, 2, 33, 1))
sketch2.addConstraint(Sketcher.Constraint("Coincident", 33, 2, 34, 1))
sketch2.addConstraint(Sketcher.Constraint("Coincident", 34, 2, 35, 1))
sketch2.addConstraint(Sketcher.Constraint("Coincident", 35, 2, 36, 1))
sketch2.addConstraint(Sketcher.Constraint("Coincident", 36, 2, 37, 1))
sketch2.addConstraint(Sketcher.Constraint("Coincident", 37, 2, 38, 1))
sketch2.addConstraint(Sketcher.Constraint("Coincident", 38, 2, 39, 1))
sketch2.addConstraint(Sketcher.Constraint("Coincident", 39, 2, 0, 1))
sketch2.addConstraint(Sketcher.Constraint("Vertical", 0))
sketch2.addConstraint(Sketcher.Constraint("Horizontal", 1))
sketch2.addConstraint(Sketcher.Constraint("Vertical", 2))
sketch2.addConstraint(Sketcher.Constraint("Horizontal", 3))
sketch2.addConstraint(Sketcher.Constraint("Vertical", 4))
sketch2.addConstraint(Sketcher.Constraint("Horizontal", 5))
sketch2.addConstraint(Sketcher.Constraint("Vertical", 6))
sketch2.addConstraint(Sketcher.Constraint("Horizontal", 7))
sketch2.addConstraint(Sketcher.Constraint("Vertical", 8))
sketch2.addConstraint(Sketcher.Constraint("Horizontal", 9))
sketch2.addConstraint(Sketcher.Constraint("Vertical", 10))
sketch2.addConstraint(Sketcher.Constraint("Horizontal", 11))
sketch2.addConstraint(Sketcher.Constraint("Vertical", 12))
sketch2.addConstraint(Sketcher.Constraint("Horizontal", 13))
sketch2.addConstraint(Sketcher.Constraint("Vertical", 14))
sketch2.addConstraint(Sketcher.Constraint("Horizontal", 15))
sketch2.addConstraint(Sketcher.Constraint("Vertical", 16))
sketch2.addConstraint(Sketcher.Constraint("Horizontal", 17))
sketch2.addConstraint(Sketcher.Constraint("Vertical", 18))
sketch2.addConstraint(Sketcher.Constraint("Horizontal", 19))
sketch2.addConstraint(Sketcher.Constraint("Vertical", 20))
sketch2.addConstraint(Sketcher.Constraint("Horizontal", 21))
sketch2.addConstraint(Sketcher.Constraint("Vertical", 22))
sketch2.addConstraint(Sketcher.Constraint("Horizontal", 23))
sketch2.addConstraint(Sketcher.Constraint("Vertical", 24))
sketch2.addConstraint(Sketcher.Constraint("Horizontal", 25))
sketch2.addConstraint(Sketcher.Constraint("Vertical", 26))
sketch2.addConstraint(Sketcher.Constraint("Horizontal", 27))
sketch2.addConstraint(Sketcher.Constraint("Vertical", 28))
sketch2.addConstraint(Sketcher.Constraint("Horizontal", 29))
sketch2.addConstraint(Sketcher.Constraint("Vertical", 30))
sketch2.addConstraint(Sketcher.Constraint("Horizontal", 31))
sketch2.addConstraint(Sketcher.Constraint("Vertical", 32))
sketch2.addConstraint(Sketcher.Constraint("Horizontal", 33))
sketch2.addConstraint(Sketcher.Constraint("Vertical", 34))
sketch2.addConstraint(Sketcher.Constraint("Horizontal", 35))
sketch2.addConstraint(Sketcher.Constraint("Vertical", 36))
sketch2.addConstraint(Sketcher.Constraint("Horizontal", 37))
sketch2.addConstraint(Sketcher.Constraint("Vertical", 38))
sketch2.addConstraint(Sketcher.Constraint("Horizontal", 39))
sketch2.addConstraint(Sketcher.Constraint("PointOnObject", 0, 2, -2))
sketch2.addConstraint(Sketcher.Constraint("PointOnObject", 3, 2, -2))
sketch2.addConstraint(Sketcher.Constraint("Horizontal", 5, 2, 8, 2))
sketch2.addConstraint(Sketcher.Constraint("Horizontal", 7, 2, 10, 2))
sketch2.addConstraint(Sketcher.Constraint("Horizontal", 9, 2, 12, 2))
sketch2.addConstraint(Sketcher.Constraint("Horizontal", 11, 2, 14, 2))
sketch2.addConstraint(Sketcher.Constraint("Horizontal", 13, 2, 16, 2))
sketch2.addConstraint(Sketcher.Constraint("Horizontal", 15, 2, 18, 2))
sketch2.addConstraint(Sketcher.Constraint("Horizontal", 17, 2, 20, 2))
sketch2.addConstraint(Sketcher.Constraint("Horizontal", 19, 2, 22, 2))
sketch2.addConstraint(Sketcher.Constraint("Horizontal", 21, 2, 24, 2))
sketch2.addConstraint(Sketcher.Constraint("Horizontal", 23, 2, 26, 2))
sketch2.addConstraint(Sketcher.Constraint("Horizontal", 25, 2, 28, 2))
sketch2.addConstraint(Sketcher.Constraint("Horizontal", 27, 2, 30, 2))
sketch2.addConstraint(Sketcher.Constraint("Horizontal", 29, 2, 32, 2))
sketch2.addConstraint(Sketcher.Constraint("Horizontal", 3, 2, 34, 2))
sketch2.addConstraint(Sketcher.Constraint("Horizontal", 1, 2, 36, 2))
sketch2.addConstraint(Sketcher.Constraint("Vertical", 34, 2, 37, 2))
sketch2.addConstraint(Sketcher.Constraint("Equal", 7, 9))
sketch2.addConstraint(Sketcher.Constraint("Equal", 9, 11))
sketch2.addConstraint(Sketcher.Constraint("Equal", 11, 13))
sketch2.addConstraint(Sketcher.Constraint("Equal", 13, 15))
sketch2.addConstraint(Sketcher.Constraint("Equal", 15, 17))
sketch2.addConstraint(Sketcher.Constraint("Equal", 17, 19))
sketch2.addConstraint(Sketcher.Constraint("Equal", 19, 21))
sketch2.addConstraint(Sketcher.Constraint("Equal", 21, 23))
sketch2.addConstraint(Sketcher.Constraint("Equal", 23, 25))
sketch2.addConstraint(Sketcher.Constraint("Equal", 25, 27))
sketch2.addConstraint(Sketcher.Constraint("Equal", 27, 29))
sketch2.addConstraint(Sketcher.Constraint("Equal", 29, 31))
sketch2.addConstraint(Sketcher.Constraint("Equal", 5, 33))
sketch2.addConstraint(Sketcher.Constraint("Equal", 3, 35))
sketch2.addConstraint(Sketcher.Constraint("Equal", 31, 0))
sketch2.addConstraint(Sketcher.Constraint("Equal", 0, 2))
sketch2.addConstraint(Sketcher.Constraint("Equal", 37, 6))
sketch2.addConstraint(Sketcher.Constraint("DistanceX", 39, 2, 39, 1, Q("8 in")))
sketch2.addConstraint(Sketcher.Constraint("DistanceY", 4, 2, 4, 1, Q("1 in")))
sketch2.addConstraint(Sketcher.Constraint("DistanceX", 7, 1, 7, 2, Q("0.5 in")))
sketch2.addConstraint(Sketcher.Constraint("DistanceY", 0, 2, -1, 1, Q("2 in")))
sketch2.addConstraint(Sketcher.Constraint("DistanceX", 1, 1, 1, 2, Q("0.26 in")))
sketch2.setExpression("Constraints[115]", "Params.sketch2_width")
sketch2.setExpression("Constraints[116]", "Params.sketch2_height")
sketch2.setExpression("Constraints[117]", "Params.sketch2_width2")
sketch2.setExpression("Constraints[119]", "Params.sketch2_width3")
pad2 = body2.newObject("PartDesign::Pad", "Pad001")
pad2.Profile = sketch2
pad2.setExpression("Length", "Params.pad2_length")

doc.recompute()
